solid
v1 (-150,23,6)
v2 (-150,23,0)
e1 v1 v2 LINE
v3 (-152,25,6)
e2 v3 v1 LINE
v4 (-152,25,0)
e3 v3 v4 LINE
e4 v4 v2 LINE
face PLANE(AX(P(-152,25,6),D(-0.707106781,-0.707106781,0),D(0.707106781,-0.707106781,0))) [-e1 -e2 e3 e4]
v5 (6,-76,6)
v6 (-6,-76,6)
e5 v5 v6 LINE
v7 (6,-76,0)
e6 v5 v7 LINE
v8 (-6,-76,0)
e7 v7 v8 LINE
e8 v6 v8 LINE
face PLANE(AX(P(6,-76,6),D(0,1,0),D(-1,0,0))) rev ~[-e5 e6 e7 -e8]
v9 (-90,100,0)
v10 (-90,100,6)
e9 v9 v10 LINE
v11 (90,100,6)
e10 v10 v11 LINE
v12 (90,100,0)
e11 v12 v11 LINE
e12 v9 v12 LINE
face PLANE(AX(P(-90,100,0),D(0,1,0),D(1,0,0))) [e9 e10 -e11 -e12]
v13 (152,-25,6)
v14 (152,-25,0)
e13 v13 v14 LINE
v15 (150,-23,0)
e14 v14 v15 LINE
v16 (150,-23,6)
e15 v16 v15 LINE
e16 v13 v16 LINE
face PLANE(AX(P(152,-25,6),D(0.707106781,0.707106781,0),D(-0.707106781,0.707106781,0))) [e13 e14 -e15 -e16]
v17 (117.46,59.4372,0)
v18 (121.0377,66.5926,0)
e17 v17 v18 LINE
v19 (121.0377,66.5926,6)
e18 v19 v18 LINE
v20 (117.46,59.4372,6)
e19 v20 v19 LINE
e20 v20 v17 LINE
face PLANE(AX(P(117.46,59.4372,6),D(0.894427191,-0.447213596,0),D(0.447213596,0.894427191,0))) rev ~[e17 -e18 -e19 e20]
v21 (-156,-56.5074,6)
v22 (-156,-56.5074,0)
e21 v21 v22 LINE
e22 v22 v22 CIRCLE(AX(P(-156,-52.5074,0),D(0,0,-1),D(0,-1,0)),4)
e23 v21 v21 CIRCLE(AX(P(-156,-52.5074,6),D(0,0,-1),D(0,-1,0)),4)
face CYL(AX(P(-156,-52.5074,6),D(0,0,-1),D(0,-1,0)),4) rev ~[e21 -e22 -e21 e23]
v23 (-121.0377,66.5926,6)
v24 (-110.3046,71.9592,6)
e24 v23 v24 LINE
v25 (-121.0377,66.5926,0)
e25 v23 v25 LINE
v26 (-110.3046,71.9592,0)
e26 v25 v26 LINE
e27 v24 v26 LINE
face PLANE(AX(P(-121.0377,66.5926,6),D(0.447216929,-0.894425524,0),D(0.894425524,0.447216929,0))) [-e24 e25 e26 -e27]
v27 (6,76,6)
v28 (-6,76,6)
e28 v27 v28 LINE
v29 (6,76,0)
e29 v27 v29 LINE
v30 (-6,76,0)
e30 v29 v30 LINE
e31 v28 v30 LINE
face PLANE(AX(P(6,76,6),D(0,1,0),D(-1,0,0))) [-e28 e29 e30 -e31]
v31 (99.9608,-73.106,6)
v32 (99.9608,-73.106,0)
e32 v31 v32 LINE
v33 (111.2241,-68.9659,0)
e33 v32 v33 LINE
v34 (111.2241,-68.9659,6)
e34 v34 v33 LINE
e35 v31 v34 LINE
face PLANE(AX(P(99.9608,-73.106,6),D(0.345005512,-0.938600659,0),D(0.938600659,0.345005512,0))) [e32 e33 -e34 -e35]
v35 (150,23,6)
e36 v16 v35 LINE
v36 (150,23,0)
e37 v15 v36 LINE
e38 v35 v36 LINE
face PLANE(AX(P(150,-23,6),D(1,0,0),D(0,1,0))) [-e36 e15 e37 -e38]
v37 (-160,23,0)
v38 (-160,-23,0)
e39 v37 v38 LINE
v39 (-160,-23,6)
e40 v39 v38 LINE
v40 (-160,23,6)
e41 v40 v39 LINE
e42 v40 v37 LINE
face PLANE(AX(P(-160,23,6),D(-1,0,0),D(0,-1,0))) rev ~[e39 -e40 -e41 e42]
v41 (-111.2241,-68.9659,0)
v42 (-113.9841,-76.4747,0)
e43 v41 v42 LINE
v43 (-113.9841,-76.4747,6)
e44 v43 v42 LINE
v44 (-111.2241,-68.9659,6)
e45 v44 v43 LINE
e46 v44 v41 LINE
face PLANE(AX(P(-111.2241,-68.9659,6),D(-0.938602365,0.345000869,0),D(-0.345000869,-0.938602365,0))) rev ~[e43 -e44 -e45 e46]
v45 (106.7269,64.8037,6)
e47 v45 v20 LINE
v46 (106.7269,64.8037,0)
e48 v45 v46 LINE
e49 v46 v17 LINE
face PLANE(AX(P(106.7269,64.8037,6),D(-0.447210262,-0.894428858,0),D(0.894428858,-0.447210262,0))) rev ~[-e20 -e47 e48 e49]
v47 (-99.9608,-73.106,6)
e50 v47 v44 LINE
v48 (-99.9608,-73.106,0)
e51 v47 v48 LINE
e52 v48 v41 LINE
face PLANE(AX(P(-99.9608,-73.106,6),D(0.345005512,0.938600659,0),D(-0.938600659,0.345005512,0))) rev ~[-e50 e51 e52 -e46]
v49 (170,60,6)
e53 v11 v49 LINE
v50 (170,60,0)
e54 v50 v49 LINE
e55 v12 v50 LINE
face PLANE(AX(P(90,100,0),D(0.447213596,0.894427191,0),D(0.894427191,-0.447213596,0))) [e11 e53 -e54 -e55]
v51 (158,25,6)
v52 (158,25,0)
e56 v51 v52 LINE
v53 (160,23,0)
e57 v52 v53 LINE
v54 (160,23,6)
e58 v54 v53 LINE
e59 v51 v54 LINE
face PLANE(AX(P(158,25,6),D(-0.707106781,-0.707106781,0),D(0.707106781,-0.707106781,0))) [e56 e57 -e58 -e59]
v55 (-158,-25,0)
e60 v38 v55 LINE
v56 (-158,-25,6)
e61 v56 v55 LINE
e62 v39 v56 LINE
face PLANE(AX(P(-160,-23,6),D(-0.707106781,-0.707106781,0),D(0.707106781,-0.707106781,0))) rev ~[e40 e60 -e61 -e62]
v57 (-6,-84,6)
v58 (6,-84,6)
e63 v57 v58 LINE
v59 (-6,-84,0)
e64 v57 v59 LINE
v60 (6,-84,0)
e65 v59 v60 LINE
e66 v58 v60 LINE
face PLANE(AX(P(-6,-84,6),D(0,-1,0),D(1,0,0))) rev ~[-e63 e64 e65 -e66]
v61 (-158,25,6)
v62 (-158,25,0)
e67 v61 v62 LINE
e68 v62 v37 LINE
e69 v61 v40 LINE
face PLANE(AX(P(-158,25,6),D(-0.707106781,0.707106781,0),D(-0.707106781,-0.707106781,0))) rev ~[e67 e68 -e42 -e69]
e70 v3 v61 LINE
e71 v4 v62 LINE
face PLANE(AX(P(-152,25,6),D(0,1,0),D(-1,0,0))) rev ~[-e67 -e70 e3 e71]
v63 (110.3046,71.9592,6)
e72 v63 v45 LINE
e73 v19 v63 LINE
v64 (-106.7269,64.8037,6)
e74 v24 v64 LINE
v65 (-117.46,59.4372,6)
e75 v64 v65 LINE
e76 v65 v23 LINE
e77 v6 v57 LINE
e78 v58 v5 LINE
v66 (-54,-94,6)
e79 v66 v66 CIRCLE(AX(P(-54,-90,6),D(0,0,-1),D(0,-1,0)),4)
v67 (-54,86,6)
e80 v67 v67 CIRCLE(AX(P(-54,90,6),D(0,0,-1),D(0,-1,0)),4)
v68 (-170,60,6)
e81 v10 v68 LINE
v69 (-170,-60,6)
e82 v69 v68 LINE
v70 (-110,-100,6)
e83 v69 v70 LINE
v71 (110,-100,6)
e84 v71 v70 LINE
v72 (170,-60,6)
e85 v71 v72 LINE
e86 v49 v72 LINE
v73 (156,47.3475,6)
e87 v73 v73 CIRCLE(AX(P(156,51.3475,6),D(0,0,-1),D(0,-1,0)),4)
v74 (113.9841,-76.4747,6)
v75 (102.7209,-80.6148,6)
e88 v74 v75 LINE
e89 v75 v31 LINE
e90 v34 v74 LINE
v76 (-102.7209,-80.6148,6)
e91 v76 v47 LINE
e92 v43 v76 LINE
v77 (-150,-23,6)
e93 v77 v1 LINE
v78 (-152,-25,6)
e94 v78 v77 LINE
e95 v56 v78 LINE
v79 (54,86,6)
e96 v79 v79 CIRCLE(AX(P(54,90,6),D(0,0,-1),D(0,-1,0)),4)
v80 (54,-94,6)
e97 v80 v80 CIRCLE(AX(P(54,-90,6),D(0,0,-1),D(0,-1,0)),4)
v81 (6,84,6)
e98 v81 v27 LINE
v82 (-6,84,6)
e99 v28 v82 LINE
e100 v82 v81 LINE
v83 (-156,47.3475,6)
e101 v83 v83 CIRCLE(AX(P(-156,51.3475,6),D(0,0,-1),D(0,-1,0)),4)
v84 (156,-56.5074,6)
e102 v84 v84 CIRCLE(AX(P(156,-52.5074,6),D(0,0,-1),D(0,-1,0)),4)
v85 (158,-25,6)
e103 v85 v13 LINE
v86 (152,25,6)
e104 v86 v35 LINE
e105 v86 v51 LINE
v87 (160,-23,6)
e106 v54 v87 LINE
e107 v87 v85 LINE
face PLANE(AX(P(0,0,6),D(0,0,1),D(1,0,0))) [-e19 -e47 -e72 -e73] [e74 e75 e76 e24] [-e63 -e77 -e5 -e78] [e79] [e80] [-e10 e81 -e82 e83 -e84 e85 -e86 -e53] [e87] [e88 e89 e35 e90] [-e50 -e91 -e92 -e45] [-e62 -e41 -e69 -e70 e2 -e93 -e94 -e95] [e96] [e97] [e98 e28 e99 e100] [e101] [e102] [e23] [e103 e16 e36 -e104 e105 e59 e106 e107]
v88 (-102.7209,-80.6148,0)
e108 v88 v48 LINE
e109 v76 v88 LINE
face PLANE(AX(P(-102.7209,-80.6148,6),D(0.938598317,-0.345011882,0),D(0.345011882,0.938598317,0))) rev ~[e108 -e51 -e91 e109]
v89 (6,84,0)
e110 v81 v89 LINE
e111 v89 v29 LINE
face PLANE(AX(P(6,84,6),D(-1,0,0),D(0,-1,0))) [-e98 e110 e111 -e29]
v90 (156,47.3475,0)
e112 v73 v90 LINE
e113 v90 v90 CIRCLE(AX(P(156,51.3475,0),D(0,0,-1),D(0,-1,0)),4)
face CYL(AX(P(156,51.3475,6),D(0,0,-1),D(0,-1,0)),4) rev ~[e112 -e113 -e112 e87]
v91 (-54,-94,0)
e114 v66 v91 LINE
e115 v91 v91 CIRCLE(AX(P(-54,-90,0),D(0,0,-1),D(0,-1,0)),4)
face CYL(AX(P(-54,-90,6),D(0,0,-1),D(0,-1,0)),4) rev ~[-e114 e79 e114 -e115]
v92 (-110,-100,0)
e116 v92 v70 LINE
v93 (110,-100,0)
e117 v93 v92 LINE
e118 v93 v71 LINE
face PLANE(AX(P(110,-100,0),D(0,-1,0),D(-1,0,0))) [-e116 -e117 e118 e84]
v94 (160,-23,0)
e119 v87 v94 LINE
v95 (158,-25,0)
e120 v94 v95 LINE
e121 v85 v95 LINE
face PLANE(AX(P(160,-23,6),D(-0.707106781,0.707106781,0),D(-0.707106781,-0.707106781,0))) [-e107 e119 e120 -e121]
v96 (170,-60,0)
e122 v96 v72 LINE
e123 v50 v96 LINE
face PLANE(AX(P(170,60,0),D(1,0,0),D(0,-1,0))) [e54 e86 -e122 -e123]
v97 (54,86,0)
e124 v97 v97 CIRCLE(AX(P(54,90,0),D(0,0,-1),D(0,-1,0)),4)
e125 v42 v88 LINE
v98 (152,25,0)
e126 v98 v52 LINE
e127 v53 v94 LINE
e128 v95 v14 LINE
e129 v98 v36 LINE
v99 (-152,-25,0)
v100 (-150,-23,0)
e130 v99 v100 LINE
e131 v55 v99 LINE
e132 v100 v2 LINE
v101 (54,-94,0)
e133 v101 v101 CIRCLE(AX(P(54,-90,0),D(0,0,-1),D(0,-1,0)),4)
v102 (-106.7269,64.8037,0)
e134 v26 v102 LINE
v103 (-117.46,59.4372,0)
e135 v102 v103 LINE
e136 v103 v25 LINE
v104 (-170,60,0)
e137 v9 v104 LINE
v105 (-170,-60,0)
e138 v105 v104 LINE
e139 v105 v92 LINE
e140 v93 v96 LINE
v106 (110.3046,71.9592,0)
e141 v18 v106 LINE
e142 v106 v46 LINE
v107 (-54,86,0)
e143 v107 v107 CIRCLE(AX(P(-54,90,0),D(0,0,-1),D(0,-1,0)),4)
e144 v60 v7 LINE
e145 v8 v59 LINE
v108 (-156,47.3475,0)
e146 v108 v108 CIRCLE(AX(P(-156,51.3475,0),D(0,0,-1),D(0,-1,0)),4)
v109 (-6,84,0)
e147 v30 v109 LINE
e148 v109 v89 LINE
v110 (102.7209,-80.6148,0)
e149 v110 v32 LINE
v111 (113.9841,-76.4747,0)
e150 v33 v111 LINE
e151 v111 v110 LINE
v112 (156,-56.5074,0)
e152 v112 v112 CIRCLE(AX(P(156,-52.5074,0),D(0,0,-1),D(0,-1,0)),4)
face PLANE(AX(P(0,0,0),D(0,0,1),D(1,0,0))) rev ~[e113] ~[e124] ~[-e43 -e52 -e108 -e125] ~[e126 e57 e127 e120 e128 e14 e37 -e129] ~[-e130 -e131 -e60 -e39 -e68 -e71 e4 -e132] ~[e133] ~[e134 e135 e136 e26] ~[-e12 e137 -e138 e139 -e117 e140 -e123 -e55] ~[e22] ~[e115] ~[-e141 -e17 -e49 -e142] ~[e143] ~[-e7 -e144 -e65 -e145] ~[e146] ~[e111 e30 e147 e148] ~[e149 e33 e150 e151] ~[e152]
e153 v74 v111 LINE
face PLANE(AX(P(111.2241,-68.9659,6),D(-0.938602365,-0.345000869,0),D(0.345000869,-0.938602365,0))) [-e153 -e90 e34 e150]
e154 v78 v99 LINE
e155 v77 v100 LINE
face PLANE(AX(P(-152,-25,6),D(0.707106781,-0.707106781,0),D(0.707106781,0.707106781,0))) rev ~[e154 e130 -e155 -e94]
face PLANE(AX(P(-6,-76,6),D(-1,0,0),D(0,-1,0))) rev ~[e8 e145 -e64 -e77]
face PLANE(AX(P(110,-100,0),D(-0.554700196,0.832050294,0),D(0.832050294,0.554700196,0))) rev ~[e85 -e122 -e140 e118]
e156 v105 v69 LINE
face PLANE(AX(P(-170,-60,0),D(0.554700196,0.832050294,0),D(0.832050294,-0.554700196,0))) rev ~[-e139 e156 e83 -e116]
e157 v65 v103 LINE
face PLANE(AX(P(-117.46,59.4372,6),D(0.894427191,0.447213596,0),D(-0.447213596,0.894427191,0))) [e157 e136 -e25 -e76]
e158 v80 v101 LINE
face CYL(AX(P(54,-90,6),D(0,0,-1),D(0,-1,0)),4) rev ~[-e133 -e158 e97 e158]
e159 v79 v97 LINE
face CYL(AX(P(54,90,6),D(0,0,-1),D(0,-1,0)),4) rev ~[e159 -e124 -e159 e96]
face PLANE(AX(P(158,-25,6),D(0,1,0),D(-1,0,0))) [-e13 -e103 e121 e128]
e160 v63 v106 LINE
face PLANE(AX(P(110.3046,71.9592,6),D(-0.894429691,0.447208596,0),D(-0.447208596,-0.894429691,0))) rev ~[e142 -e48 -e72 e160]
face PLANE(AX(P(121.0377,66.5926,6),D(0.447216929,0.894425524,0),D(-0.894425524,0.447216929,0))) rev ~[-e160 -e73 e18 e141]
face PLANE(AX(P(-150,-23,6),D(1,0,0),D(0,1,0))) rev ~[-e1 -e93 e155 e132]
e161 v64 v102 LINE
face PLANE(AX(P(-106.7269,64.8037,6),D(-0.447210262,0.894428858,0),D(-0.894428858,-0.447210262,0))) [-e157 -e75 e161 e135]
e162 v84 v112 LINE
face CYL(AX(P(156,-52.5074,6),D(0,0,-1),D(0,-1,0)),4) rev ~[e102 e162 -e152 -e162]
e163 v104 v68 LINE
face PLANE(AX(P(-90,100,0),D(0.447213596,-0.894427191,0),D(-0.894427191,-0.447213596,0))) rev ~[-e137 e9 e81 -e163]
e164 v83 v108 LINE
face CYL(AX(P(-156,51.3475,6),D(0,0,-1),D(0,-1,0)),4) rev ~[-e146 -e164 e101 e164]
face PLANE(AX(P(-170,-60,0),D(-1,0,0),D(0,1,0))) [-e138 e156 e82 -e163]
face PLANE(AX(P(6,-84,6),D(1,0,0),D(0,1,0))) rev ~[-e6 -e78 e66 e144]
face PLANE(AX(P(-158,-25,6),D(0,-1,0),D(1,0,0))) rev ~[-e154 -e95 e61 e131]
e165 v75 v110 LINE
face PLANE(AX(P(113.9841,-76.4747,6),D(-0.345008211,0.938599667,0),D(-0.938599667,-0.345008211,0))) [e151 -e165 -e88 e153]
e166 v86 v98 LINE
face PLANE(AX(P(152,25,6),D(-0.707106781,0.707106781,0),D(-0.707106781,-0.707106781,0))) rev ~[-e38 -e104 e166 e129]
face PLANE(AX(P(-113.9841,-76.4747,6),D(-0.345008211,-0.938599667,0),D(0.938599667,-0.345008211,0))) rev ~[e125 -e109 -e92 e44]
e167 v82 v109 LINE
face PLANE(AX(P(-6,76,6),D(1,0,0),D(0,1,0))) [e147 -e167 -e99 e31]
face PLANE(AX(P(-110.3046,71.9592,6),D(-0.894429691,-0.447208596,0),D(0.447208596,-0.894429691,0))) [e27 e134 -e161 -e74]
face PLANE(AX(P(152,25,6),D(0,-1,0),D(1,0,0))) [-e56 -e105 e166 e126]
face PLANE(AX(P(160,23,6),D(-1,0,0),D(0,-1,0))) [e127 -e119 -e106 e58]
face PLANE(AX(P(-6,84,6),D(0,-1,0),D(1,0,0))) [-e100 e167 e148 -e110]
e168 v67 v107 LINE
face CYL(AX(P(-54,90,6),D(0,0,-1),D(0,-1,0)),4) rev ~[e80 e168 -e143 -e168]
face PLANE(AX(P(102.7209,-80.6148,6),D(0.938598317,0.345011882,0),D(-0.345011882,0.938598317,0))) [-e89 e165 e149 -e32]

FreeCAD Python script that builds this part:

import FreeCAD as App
import Part
import Sketcher
from FreeCAD import Vector


def add_polygon(sketch, points):
    """Adds a closed chain of lines whose ends are joined by coincident constraints."""
    first, n = sketch.GeometryCount, len(points)
    for a, b in zip(points, points[1:] + points[:1]):
        sketch.addGeometry(Part.LineSegment(App.Vector(*a, 0), App.Vector(*b, 0)), False)
    for i in range(n):
        sketch.addConstraint(Sketcher.Constraint("Coincident", first + i, 2, first + (i + 1) % n, 1))

doc = App.newDocument("Part")
body = doc.addObject("PartDesign::Body", "Body")

sketch1 = body.newObject("Sketcher::SketchObject", "Sketch")
sketch1.AttachmentSupport = (doc.getObject("XY_Plane"), [""])
sketch1.MapMode = "FlatFace"
add_polygon(sketch1, [(-110, -100), (110, -100), (170, -60), (170, 60), (90, 100), (-90, 100), (-170, 60), (-170, -60)])
sketch1.addConstraint([
    Sketcher.Constraint("Horizontal", 0),
    Sketcher.Constraint("Vertical", 2),
    Sketcher.Constraint("Horizontal", 4),
    Sketcher.Constraint("Vertical", 6),
    Sketcher.Constraint("Symmetric", 1, 2, 5, 2, -1, 1),
    Sketcher.Constraint("Horizontal", 2, 2, 5, 2),
    Sketcher.Constraint("Horizontal", 1, 2, 6, 2),
    Sketcher.Constraint("Equal", 3, 5),
    Sketcher.Constraint("Equal", 1, 7),
    Sketcher.Constraint("DistanceY", 0, 2, -1, 1, 100.0),
    Sketcher.Constraint("DistanceY", 1, 2, -1, 1, 60.0),
    Sketcher.Constraint("DistanceY", -1, 1, 3, 2, 100.0),
    Sketcher.Constraint("DistanceX", 0, 2, 1, 2, 60.0),
    Sketcher.Constraint("DistanceX", 3, 2, 2, 2, 80.0),
    Sketcher.Constraint("DistanceX", 5, 2, 2, 2, 340.0),
])
pad1 = body.newObject("PartDesign::Pad", "Pad")
pad1.Profile = sketch1
pad1.Length = 6

sketch2 = body.newObject("Sketcher::SketchObject", "Sketch001")
sketch2.AttachmentSupport = (doc.getObject("XY_Plane"), [""])
sketch2.MapMode = "FlatFace"
sketch2.AttachmentOffset = App.Placement(Vector(0, 0, 6), App.Rotation())
sketch2.addGeometry([
    Part.Circle(Vector(-156, -52.5074, 0), Vector(0, 0, 1), 4),
    Part.Circle(Vector(-156, 51.3475, 0), Vector(0, 0, 1), 4),
    Part.Circle(Vector(-54, 90, 0), Vector(0, 0, 1), 4),
    Part.Circle(Vector(54, 90, 0), Vector(0, 0, 1), 4),
    Part.Circle(Vector(156, 51.3475, 0), Vector(0, 0, 1), 4),
    Part.Circle(Vector(156, -52.5074, 0), Vector(0, 0, 1), 4),
    Part.Circle(Vector(54, -90, 0), Vector(0, 0, 1), 4),
    Part.Circle(Vector(-54, -90, 0), Vector(0, 0, 1), 4),
], False)
sketch2.addConstraint([
    Sketcher.Constraint("Equal", 0, 1),
    Sketcher.Constraint("Equal", 1, 2),
    Sketcher.Constraint("Equal", 2, 3),
    Sketcher.Constraint("Equal", 3, 4),
    Sketcher.Constraint("Equal", 4, 5),
    Sketcher.Constraint("Equal", 5, 6),
    Sketcher.Constraint("Equal", 6, 7),
    Sketcher.Constraint("Symmetric", 2, 3, 6, 3, -1, 1),
    Sketcher.Constraint("Symmetric", 3, 3, 7, 3, -1, 1),
    Sketcher.Constraint("Symmetric", 2, 3, 3, 3, -2),
    Sketcher.Constraint("Symmetric", 1, 3, 4, 3, -2),
    Sketcher.Constraint("Symmetric", 0, 3, 5, 3, -2),
    Sketcher.Constraint("Vertical", 0, 3, 1, 3),
    Sketcher.Constraint("Diameter", 0, 8.0),
    Sketcher.Constraint("DistanceX", 0, 3, -1, 1, 156.0),
    Sketcher.Constraint("DistanceX", 2, 3, -1, 1, 54.0),
    Sketcher.Constraint("DistanceY", -1, 1, 2, 3, 90.0),
    Sketcher.Constraint("DistanceY", 0, 3, 1, 3, 103.855),
    Sketcher.Constraint("DistanceY", 0, 3, -1, 1, 52.5074),
])
doc.recompute()
hole = body.newObject("PartDesign::Hole", "Hole")
hole.Profile = sketch2
hole.ThreadType = "None"
hole.Diameter = 8
hole.DepthType = "ThroughAll"

sketch3 = body.newObject("Sketcher::SketchObject", "Sketch002")
sketch3.AttachmentSupport = (doc.getObject("XY_Plane"), [""])
sketch3.MapMode = "FlatFace"
sketch3.AttachmentOffset = App.Placement(Vector(0, 0, 6), App.Rotation())
add_polygon(sketch3, [(6, 84), (-6, 84), (-6, 76), (6, 76)])
add_polygon(sketch3, [(-110.3046, 71.9592), (-121.0377, 66.5926), (-117.46, 59.4372), (-106.7269, 64.8037)])
add_polygon(sketch3, [(-111.2241, -68.9659), (-113.9841, -76.4747), (-102.7209, -80.6148), (-99.9608, -73.106)])
add_polygon(sketch3, [(117.46, 59.4372), (121.0377, 66.5926), (110.3046, 71.9592), (106.7269, 64.8037)])
add_polygon(sketch3, [(102.7209, -80.6148), (113.9841, -76.4747), (111.2241, -68.9659), (99.9608, -73.106)])
add_polygon(sketch3, [(-6, -76), (-6, -84), (6, -84), (6, -76)])
sketch3.addConstraint([
    Sketcher.Constraint("Horizontal", 0),
    Sketcher.Constraint("Vertical", 1),
    Sketcher.Constraint("Horizontal", 2),
    Sketcher.Constraint("Vertical", 3),
    Sketcher.Constraint("Vertical", 20),
    Sketcher.Constraint("Horizontal", 21),
    Sketcher.Constraint("Vertical", 22),
    Sketcher.Constraint("Horizontal", 23),
    Sketcher.Constraint("Symmetric", 3, 2, 20, 2, -1, 1),
    Sketcher.Constraint("Symmetric", 1, 2, 22, 2, -1, 1),
    Sketcher.Constraint("Symmetric", 4, 2, 12, 2, -2),
    Sketcher.Constraint("Symmetric", 7, 2, 13, 2, -2),
    Sketcher.Constraint("Symmetric", 6, 2, 14, 2, -2),
    Sketcher.Constraint("Symmetric", 5, 2, 15, 2, -2),
    Sketcher.Constraint("Symmetric", 8, 2, 16, 2, -2),
    Sketcher.Constraint("Symmetric", 11, 2, 17, 2, -2),
    Sketcher.Constraint("Symmetric", 10, 2, 18, 2, -2),
    Sketcher.Constraint("Symmetric", 9, 2, 19, 2, -2),
    Sketcher.Constraint("Perpendicular", 4, 5),
    Sketcher.Constraint("Perpendicular", 5, 6),
    Sketcher.Constraint("Perpendicular", 6, 7),
    Sketcher.Constraint("Perpendicular", 8, 9),
    Sketcher.Constraint("Perpendicular", 9, 10),
    Sketcher.Constraint("Perpendicular", 10, 11),
    Sketcher.Constraint("Vertical", 1, 2, 20, 2),
    Sketcher.Constraint("Equal", 7, 8),
    Sketcher.Constraint("Equal", 6, 9),
    Sketcher.Constraint("DistanceX", 0, 2, 0, 1, 12.0),
    Sketcher.Constraint("DistanceY", 1, 2, 1, 1, 8.0),
    Sketcher.Constraint("Distance", 4, 12.0),
    Sketcher.Constraint("Distance", 5, 8.0),
    Sketcher.Constraint("DistanceY", -1, 1, 0, 2, 84.0),
    Sketcher.Constraint("DistanceX", 5, 2, -1, 1, 117.46),
    Sketcher.Constraint("DistanceY", 9, 2, 8, 2, 4.14),
    Sketcher.Constraint("DistanceX", 6, 2, -1, 1, 106.727),
    Sketcher.Constraint("DistanceX", 8, 2, -1, 1, 113.984),
    Sketcher.Constraint("DistanceY", 10, 2, -1, 1, 73.106),
    Sketcher.Constraint("DistanceY", 8, 2, 5, 2, 135.912),
])
pocket1 = body.newObject("PartDesign::Pocket", "Pocket")
pocket1.Profile = sketch3
pocket1.Length = 10

sketch4 = body.newObject("Sketcher::SketchObject", "Sketch003")
sketch4.AttachmentSupport = (doc.getObject("XY_Plane"), [""])
sketch4.MapMode = "FlatFace"
sketch4.AttachmentOffset = App.Placement(Vector(0, 0, 6), App.Rotation())
add_polygon(sketch4, [(-150, 23), (-152, 25), (-158, 25), (-160, 23), (-160, -23), (-158, -25), (-152, -25), (-150, -23)])
add_polygon(sketch4, [(158, 25), (152, 25), (150, 23), (150, -23), (152, -25), (158, -25), (160, -23), (160, 23)])
sketch4.addConstraint([
    Sketcher.Constraint("Horizontal", 1),
    Sketcher.Constraint("Vertical", 3),
    Sketcher.Constraint("Horizontal", 5),
    Sketcher.Constraint("Vertical", 7),
    Sketcher.Constraint("Horizontal", 8),
    Sketcher.Constraint("Vertical", 10),
    Sketcher.Constraint("Horizontal", 12),
    Sketcher.Constraint("Vertical", 14),
    Sketcher.Constraint("Symmetric", 5, 2, 8, 2, -1, 1),
    Sketcher.Constraint("Symmetric", 6, 2, 9, 2, -1, 1),
    Sketcher.Constraint("Symmetric", 0, 2, 11, 2, -1, 1),
    Sketcher.Constraint("Symmetric", 2, 2, 13, 2, -1, 1),
    Sketcher.Constraint("Symmetric", 0, 2, 8, 2, -2),
    Sketcher.Constraint("Perpendicular", 0, 2),
    Sketcher.Constraint("Perpendicular", 2, 4),
    Sketcher.Constraint("Perpendicular", 4, 6),
    Sketcher.Constraint("Perpendicular", 9, 11),
    Sketcher.Constraint("Perpendicular", 11, 13),
    Sketcher.Constraint("Perpendicular", 13, 15),
    Sketcher.Constraint("Horizontal", 3, 2, 6, 2),
    Sketcher.Constraint("Horizontal", 2, 2, 7, 2),
    Sketcher.Constraint("Horizontal", 7, 2, 9, 2),
    Sketcher.Constraint("Horizontal", 9, 2, 14, 2),
    Sketcher.Constraint("DistanceY", -1, 1, 0, 2, 25.0),
    Sketcher.Constraint("DistanceX", 6, 2, -1, 1, 150.0),
    Sketcher.Constraint("DistanceX", 2, 2, 1, 2, 2.0),
    Sketcher.Constraint("DistanceX", 3, 2, 6, 2, 10.0),
])
pocket2 = body.newObject("PartDesign::Pocket", "Pocket001")
pocket2.Profile = sketch4
pocket2.Length = 10

doc.recompute()
